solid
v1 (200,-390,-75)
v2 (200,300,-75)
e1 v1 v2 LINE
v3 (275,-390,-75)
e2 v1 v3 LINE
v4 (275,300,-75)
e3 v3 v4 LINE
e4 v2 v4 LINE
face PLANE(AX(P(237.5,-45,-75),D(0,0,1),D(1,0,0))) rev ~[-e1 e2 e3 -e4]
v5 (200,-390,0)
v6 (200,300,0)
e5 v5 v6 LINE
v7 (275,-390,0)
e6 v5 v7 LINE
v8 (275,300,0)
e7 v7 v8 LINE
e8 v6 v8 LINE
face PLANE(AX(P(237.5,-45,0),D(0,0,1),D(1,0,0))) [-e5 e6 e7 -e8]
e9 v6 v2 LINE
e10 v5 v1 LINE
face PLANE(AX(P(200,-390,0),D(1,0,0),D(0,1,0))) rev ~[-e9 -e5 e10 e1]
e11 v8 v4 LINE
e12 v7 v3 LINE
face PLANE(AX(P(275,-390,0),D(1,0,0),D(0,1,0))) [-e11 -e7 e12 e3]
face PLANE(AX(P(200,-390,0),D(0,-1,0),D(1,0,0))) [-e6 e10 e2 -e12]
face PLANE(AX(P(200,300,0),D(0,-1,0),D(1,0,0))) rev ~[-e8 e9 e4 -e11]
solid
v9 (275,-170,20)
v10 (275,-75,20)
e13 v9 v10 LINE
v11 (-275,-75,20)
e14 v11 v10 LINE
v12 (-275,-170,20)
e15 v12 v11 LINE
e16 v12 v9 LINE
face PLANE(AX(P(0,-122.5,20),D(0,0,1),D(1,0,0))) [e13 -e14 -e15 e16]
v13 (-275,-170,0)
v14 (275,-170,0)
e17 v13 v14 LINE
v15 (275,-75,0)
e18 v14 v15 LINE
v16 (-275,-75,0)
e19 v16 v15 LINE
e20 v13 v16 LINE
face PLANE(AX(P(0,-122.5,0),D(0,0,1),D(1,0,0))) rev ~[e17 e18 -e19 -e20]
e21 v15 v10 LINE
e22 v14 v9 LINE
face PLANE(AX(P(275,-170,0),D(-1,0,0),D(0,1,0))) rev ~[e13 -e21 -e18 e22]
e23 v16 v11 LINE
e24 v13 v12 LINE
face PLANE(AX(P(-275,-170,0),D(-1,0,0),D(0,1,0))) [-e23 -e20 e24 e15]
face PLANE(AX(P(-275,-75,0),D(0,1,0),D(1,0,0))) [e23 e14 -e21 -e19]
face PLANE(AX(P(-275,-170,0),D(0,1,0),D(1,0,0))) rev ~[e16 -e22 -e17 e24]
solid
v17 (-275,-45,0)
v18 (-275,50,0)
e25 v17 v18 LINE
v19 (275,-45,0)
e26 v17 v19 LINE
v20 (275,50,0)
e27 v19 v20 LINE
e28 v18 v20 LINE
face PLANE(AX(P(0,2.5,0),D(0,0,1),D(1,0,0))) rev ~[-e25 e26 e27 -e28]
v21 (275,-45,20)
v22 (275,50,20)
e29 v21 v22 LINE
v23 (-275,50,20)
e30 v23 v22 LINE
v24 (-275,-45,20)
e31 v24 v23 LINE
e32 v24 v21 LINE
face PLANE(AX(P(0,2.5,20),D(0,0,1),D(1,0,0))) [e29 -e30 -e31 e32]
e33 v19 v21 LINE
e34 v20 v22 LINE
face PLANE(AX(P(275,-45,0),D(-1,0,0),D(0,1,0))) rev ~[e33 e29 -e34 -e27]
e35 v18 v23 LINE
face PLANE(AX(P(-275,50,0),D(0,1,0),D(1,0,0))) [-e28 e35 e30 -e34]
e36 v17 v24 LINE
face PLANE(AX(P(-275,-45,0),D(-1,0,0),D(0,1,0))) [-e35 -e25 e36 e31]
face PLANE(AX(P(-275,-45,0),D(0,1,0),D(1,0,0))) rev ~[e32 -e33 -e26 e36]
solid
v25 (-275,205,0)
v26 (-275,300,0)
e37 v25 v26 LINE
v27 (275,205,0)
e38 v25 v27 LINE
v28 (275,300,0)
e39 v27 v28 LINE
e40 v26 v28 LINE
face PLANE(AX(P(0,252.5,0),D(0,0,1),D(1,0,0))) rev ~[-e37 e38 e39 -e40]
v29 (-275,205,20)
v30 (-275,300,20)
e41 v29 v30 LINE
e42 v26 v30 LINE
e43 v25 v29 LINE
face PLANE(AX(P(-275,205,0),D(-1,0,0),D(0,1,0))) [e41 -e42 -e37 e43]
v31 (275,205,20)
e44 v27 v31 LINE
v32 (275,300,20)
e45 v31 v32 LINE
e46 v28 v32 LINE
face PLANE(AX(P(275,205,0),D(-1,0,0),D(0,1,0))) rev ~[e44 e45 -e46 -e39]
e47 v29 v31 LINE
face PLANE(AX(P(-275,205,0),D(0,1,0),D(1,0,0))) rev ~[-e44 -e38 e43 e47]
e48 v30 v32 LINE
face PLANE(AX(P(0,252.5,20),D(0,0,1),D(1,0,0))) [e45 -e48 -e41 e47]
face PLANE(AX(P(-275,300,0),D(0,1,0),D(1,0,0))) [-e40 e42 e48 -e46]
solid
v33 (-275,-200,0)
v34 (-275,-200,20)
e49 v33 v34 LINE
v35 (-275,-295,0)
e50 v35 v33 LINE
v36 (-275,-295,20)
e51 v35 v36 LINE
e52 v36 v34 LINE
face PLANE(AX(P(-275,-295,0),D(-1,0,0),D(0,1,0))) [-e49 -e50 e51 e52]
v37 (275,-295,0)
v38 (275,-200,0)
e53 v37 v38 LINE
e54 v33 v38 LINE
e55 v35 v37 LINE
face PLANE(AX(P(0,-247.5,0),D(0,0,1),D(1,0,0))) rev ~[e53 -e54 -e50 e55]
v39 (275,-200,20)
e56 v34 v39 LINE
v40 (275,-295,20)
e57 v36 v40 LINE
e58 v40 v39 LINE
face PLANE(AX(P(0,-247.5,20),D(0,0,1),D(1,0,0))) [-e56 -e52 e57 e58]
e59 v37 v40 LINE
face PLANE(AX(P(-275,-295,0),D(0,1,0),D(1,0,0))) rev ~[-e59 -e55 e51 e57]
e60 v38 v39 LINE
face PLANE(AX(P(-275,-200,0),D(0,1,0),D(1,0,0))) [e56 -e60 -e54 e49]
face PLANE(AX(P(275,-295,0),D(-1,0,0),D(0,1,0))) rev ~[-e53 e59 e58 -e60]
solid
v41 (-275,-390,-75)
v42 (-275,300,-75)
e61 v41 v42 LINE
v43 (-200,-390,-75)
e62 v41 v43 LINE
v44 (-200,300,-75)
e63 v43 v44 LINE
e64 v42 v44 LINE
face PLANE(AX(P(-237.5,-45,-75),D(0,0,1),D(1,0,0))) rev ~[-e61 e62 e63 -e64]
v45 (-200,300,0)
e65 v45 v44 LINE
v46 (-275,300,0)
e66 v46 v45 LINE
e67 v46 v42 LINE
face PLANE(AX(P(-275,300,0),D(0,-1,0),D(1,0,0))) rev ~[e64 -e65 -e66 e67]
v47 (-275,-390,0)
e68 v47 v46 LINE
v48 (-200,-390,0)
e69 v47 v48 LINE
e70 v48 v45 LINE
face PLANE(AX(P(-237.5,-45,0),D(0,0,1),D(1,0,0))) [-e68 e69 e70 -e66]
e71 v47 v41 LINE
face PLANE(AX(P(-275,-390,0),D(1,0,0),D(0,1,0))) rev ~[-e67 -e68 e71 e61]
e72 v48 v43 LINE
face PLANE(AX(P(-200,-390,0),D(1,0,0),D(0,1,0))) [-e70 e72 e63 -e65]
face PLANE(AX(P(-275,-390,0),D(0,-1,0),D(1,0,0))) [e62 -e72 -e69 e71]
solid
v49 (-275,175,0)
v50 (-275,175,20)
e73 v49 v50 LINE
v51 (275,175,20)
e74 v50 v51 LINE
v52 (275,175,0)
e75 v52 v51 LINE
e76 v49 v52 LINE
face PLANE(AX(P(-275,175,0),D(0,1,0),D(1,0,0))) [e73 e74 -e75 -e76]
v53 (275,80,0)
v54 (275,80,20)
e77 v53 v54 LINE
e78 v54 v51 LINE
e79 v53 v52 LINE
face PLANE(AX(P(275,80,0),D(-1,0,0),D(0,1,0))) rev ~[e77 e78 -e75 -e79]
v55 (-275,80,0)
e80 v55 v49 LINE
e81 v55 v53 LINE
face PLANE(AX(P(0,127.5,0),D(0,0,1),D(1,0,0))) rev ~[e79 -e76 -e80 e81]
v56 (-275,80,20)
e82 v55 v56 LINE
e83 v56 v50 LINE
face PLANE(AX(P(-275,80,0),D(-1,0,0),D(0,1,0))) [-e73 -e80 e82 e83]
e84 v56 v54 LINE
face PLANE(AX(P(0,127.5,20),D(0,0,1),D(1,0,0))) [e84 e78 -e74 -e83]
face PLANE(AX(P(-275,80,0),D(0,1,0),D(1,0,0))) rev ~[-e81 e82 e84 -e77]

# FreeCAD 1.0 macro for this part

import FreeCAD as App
import Part
import Sketcher
from FreeCAD import Vector
Q = App.Units.Quantity

doc = App.newDocument("Part")
params = doc.addObject("Spreadsheet::Sheet", "Params")
for row, (alias, value) in enumerate([
    ("sketch1_width", "550 mm"),
    ("sketch1_height", "95 mm"),
    ("pad1_length", "20 mm"),
    ("sketch2_width", "75 mm"),
    ("sketch2_height", "690 mm"),
    ("pad2_length", "75 mm"),
], start=1):
    params.set(f"A{row}", alias)
    params.set(f"B{row}", "=" + value)
    params.setAlias(f"B{row}", alias)

body = doc.addObject("PartDesign::Body", "Body")
body.AllowCompound = True

# Sketch on XY plane
sketch1 = body.newObject("Sketcher::SketchObject", "Sketch")
sketch1.AttachmentSupport = (doc.getObject("XY_Plane"), [""])
sketch1.MapMode = "FlatFace"
sketch1.addGeometry([
    Part.LineSegment(Vector(-275, 300, 0), Vector(-275, 205, 0)),  # 0
    Part.LineSegment(Vector(-275, 205, 0), Vector(275, 205, 0)),  # 1
    Part.LineSegment(Vector(275, 205, 0), Vector(275, 300, 0)),  # 2
    Part.LineSegment(Vector(275, 300, 0), Vector(-275, 300, 0)),  # 3
    Part.LineSegment(Vector(-275, 175, 0), Vector(-275, 80, 0)),  # 4
    Part.LineSegment(Vector(-275, 80, 0), Vector(275, 80, 0)),  # 5
    Part.LineSegment(Vector(275, 80, 0), Vector(275, 175, 0)),  # 6
    Part.LineSegment(Vector(275, 175, 0), Vector(-275, 175, 0)),  # 7
    Part.LineSegment(Vector(-275, 50, 0), Vector(-275, -45, 0)),  # 8
    Part.LineSegment(Vector(-275, -45, 0), Vector(275, -45, 0)),  # 9
    Part.LineSegment(Vector(275, -45, 0), Vector(275, 50, 0)),  # 10
    Part.LineSegment(Vector(275, 50, 0), Vector(-275, 50, 0)),  # 11
    Part.LineSegment(Vector(-275, -75, 0), Vector(-275, -170, 0)),  # 12
    Part.LineSegment(Vector(-275, -170, 0), Vector(275, -170, 0)),  # 13
    Part.LineSegment(Vector(275, -170, 0), Vector(275, -75, 0)),  # 14
    Part.LineSegment(Vector(275, -75, 0), Vector(-275, -75, 0)),  # 15
    Part.LineSegment(Vector(-275, -200, 0), Vector(-275, -295, 0)),  # 16
    Part.LineSegment(Vector(-275, -295, 0), Vector(275, -295, 0)),  # 17
    Part.LineSegment(Vector(275, -295, 0), Vector(275, -200, 0)),  # 18
    Part.LineSegment(Vector(275, -200, 0), Vector(-275, -200, 0)),  # 19
], False)
sketch1.addConstraint([
    Sketcher.Constraint("Coincident", 0, 2, 1, 1),
    Sketcher.Constraint("Coincident", 1, 2, 2, 1),
    Sketcher.Constraint("Coincident", 2, 2, 3, 1),
    Sketcher.Constraint("Coincident", 3, 2, 0, 1),
    Sketcher.Constraint("Coincident", 4, 2, 5, 1),
    Sketcher.Constraint("Coincident", 5, 2, 6, 1),
    Sketcher.Constraint("Coincident", 6, 2, 7, 1),
    Sketcher.Constraint("Coincident", 7, 2, 4, 1),
    Sketcher.Constraint("Coincident", 8, 2, 9, 1),
    Sketcher.Constraint("Coincident", 9, 2, 10, 1),
    Sketcher.Constraint("Coincident", 10, 2, 11, 1),
    Sketcher.Constraint("Coincident", 11, 2, 8, 1),
    Sketcher.Constraint("Coincident", 12, 2, 13, 1),
    Sketcher.Constraint("Coincident", 13, 2, 14, 1),
    Sketcher.Constraint("Coincident", 14, 2, 15, 1),
    Sketcher.Constraint("Coincident", 15, 2, 12, 1),
    Sketcher.Constraint("Coincident", 16, 2, 17, 1),
    Sketcher.Constraint("Coincident", 17, 2, 18, 1),
    Sketcher.Constraint("Coincident", 18, 2, 19, 1),
    Sketcher.Constraint("Coincident", 19, 2, 16, 1),
    Sketcher.Constraint("Vertical", 0),
    Sketcher.Constraint("Horizontal", 1),
    Sketcher.Constraint("Vertical", 2),
    Sketcher.Constraint("Horizontal", 3),
    Sketcher.Constraint("Vertical", 4),
    Sketcher.Constraint("Horizontal", 5),
    Sketcher.Constraint("Vertical", 6),
    Sketcher.Constraint("Horizontal", 7),
    Sketcher.Constraint("Vertical", 8),
    Sketcher.Constraint("Horizontal", 9),
    Sketcher.Constraint("Vertical", 10),
    Sketcher.Constraint("Horizontal", 11),
    Sketcher.Constraint("Vertical", 12),
    Sketcher.Constraint("Horizontal", 13),
    Sketcher.Constraint("Vertical", 14),
    Sketcher.Constraint("Horizontal", 15),
    Sketcher.Constraint("Vertical", 16),
    Sketcher.Constraint("Horizontal", 17),
    Sketcher.Constraint("Vertical", 18),
    Sketcher.Constraint("Horizontal", 19),
    Sketcher.Constraint("Vertical", 3, 2, 4, 2),
    Sketcher.Constraint("Vertical", 2, 2, 5, 2),
    Sketcher.Constraint("Vertical", 7, 2, 8, 2),
    Sketcher.Constraint("Vertical", 6, 2, 9, 2),
    Sketcher.Constraint("Vertical", 11, 2, 12, 2),
    Sketcher.Constraint("Vertical", 10, 2, 13, 2),
    Sketcher.Constraint("Vertical", 15, 2, 16, 2),
    Sketcher.Constraint("Vertical", 14, 2, 17, 2),
    Sketcher.Constraint("Equal", 2, 4),
    Sketcher.Constraint("Equal", 6, 8),
    Sketcher.Constraint("Equal", 10, 12),
    Sketcher.Constraint("Equal", 14, 16),
    Sketcher.Constraint("DistanceX", 1, 1, 1, 2, Q("550 mm")),
    Sketcher.Constraint("DistanceY", 0, 2, 0, 1, Q("95 mm")),
    Sketcher.Constraint("DistanceX", 0, 2, -1, 1, Q("275 mm")),
    Sketcher.Constraint("DistanceY", -1, 1, 0, 2, Q("205 mm")),
    Sketcher.Constraint("DistanceY", -1, 1, 4, 2, Q("80 mm")),
    Sketcher.Constraint("DistanceY", 8, 2, -1, 1, Q("45 mm")),
    Sketcher.Constraint("DistanceY", 12, 2, -1, 1, Q("170 mm")),
    Sketcher.Constraint("DistanceY", 16, 2, -1, 1, Q("295 mm")),
])
sketch1.setExpression("Constraints[52]", "Params.sketch1_width")
sketch1.setExpression("Constraints[53]", "Params.sketch1_height")
pad1 = body.newObject("PartDesign::Pad", "Pad")
pad1.Profile = sketch1
pad1.setExpression("Length", "Params.pad1_length")
body2 = doc.addObject("PartDesign::Body", "Body001")
body2.AllowCompound = True

# Sketch on XY plane
sketch2 = body2.newObject("Sketcher::SketchObject", "Sketch001")
sketch2.AttachmentSupport = (doc.getObject("XY_Plane001"), [""])
sketch2.MapMode = "FlatFace"
sketch2.addGeometry([
    Part.LineSegment(Vector(200, 300, 0), Vector(200, -390, 0)),  # 0
    Part.LineSegment(Vector(200, -390, 0), Vector(275, -390, 0)),  # 1
    Part.LineSegment(Vector(275, -390, 0), Vector(275, 300, 0)),  # 2
    Part.LineSegment(Vector(275, 300, 0), Vector(200, 300, 0)),  # 3
    Part.LineSegment(Vector(-275, 300, 0), Vector(-275, -390, 0)),  # 4
    Part.LineSegment(Vector(-275, -390, 0), Vector(-200, -390, 0)),  # 5
    Part.LineSegment(Vector(-200, -390, 0), Vector(-200, 300, 0)),  # 6
    Part.LineSegment(Vector(-200, 300, 0), Vector(-275, 300, 0)),  # 7
], False)
sketch2.addConstraint([
    Sketcher.Constraint("Coincident", 0, 2, 1, 1),
    Sketcher.Constraint("Coincident", 1, 2, 2, 1),
    Sketcher.Constraint("Coincident", 2, 2, 3, 1),
    Sketcher.Constraint("Coincident", 3, 2, 0, 1),
    Sketcher.Constraint("Coincident", 4, 2, 5, 1),
    Sketcher.Constraint("Coincident", 5, 2, 6, 1),
    Sketcher.Constraint("Coincident", 6, 2, 7, 1),
    Sketcher.Constraint("Coincident", 7, 2, 4, 1),
    Sketcher.Constraint("Vertical", 0),
    Sketcher.Constraint("Horizontal", 1),
    Sketcher.Constraint("Vertical", 2),
    Sketcher.Constraint("Horizontal", 3),
    Sketcher.Constraint("Vertical", 4),
    Sketcher.Constraint("Horizontal", 5),
    Sketcher.Constraint("Vertical", 6),
    Sketcher.Constraint("Horizontal", 7),
    Sketcher.Constraint("Symmetric", 1, 2, 4, 2, -2),
    Sketcher.Constraint("Symmetric", 3, 2, 6, 2, -2),
    Sketcher.Constraint("DistanceX", 1, 1, 1, 2, Q("75 mm")),
    Sketcher.Constraint("DistanceY", 0, 2, 0, 1, Q("690 mm")),
    Sketcher.Constraint("DistanceX", -1, 1, 0, 2, Q("200 mm")),
    Sketcher.Constraint("DistanceY", 0, 2, -1, 1, Q("390 mm")),
])
sketch2.setExpression("Constraints[18]", "Params.sketch2_width")
sketch2.setExpression("Constraints[19]", "Params.sketch2_height")
pad2 = body2.newObject("PartDesign::Pad", "Pad001")
pad2.Profile = sketch2
pad2.setExpression("Length", "Params.pad2_length")
pad2.Reversed = True

doc.recompute()
